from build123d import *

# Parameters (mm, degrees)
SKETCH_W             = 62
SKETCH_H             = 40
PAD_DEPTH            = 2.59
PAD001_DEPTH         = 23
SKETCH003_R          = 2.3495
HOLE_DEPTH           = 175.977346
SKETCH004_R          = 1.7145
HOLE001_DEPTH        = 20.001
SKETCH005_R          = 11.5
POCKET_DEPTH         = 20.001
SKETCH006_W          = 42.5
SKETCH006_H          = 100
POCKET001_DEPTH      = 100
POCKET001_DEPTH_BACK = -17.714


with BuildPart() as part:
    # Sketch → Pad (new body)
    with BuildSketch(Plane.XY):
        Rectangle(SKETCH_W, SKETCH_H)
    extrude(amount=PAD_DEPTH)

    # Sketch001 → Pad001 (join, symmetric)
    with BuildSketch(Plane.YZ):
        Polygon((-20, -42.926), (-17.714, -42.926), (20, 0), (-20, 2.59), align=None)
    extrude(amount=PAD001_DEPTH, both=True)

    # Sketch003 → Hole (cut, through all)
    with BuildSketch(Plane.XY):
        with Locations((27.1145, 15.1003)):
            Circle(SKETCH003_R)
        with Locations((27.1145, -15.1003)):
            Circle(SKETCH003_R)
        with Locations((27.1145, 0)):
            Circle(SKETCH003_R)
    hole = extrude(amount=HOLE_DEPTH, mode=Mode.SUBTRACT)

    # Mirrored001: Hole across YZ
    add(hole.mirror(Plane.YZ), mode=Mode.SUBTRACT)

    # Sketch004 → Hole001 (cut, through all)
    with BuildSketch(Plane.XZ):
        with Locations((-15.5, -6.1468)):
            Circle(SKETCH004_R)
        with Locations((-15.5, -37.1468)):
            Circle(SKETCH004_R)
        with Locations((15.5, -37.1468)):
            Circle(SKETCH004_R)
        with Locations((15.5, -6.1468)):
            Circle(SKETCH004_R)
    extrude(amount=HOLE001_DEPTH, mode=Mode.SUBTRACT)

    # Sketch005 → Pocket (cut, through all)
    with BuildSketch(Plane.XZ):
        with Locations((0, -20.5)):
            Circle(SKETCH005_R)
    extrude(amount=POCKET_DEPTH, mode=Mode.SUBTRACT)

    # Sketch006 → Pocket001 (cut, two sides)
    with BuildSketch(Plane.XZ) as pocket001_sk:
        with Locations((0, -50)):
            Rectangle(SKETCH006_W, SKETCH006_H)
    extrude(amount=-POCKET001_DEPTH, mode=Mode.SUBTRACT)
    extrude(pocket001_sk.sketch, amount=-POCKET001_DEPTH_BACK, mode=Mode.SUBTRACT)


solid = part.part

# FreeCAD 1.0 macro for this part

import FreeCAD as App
import Part
import Sketcher

V = App.Vector


def add_polygon(sketch, points):
    """Adds a closed chain of lines whose ends are joined by coincident constraints."""
    first, n = sketch.GeometryCount, len(points)
    for a, b in zip(points, points[1:] + points[:1]):
        sketch.addGeometry(Part.LineSegment(App.Vector(*a, 0), App.Vector(*b, 0)), False)
    for i in range(n):
        sketch.addConstraint(Sketcher.Constraint("Coincident", first + i, 2, first + (i + 1) % n, 1))

doc = App.newDocument("Part")
body = doc.addObject("PartDesign::Body", "Body")

# Sketch on XY plane
sketch1 = body.newObject("Sketcher::SketchObject", "Sketch")
sketch1.AttachmentSupport = (doc.getObject("XY_Plane"), [""])
sketch1.MapMode = "FlatFace"
add_polygon(sketch1, [(-31, 20), (-31, -20), (31, -20), (31, 20)])  # lines 0-3
sketch1.addConstraint(Sketcher.Constraint("Vertical", 0))
sketch1.addConstraint(Sketcher.Constraint("Horizontal", 1))
sketch1.addConstraint(Sketcher.Constraint("Vertical", 2))
sketch1.addConstraint(Sketcher.Constraint("Horizontal", 3))
sketch1.addConstraint(Sketcher.Constraint("Symmetric", 0, 2, 2, 2, -1, 1))
sketch1.addConstraint(Sketcher.Constraint("DistanceX", 1, 1, 1, 2, 62.0))
sketch1.addConstraint(Sketcher.Constraint("DistanceY", 0, 2, 0, 1, 40.0))
pad1 = body.newObject("PartDesign::Pad", "Pad")
pad1.Profile = sketch1
pad1.Length = 2.59

# Sketch on YZ plane
sketch2 = body.newObject("Sketcher::SketchObject", "Sketch001")
sketch2.AttachmentSupport = (doc.getObject("YZ_Plane"), [""])
sketch2.MapMode = "FlatFace"
add_polygon(sketch2, [(-20, -42.9), (-17.7, -42.9), (20, 0), (-20, 2.6)])  # lines 0-3
sketch2.addConstraint(Sketcher.Constraint("Horizontal", 0))
sketch2.addConstraint(Sketcher.Constraint("Vertical", 3))
sketch2.addConstraint(Sketcher.Constraint("PointOnObject", 1, 2, -1))
sketch2.addConstraint(Sketcher.Constraint("DistanceX", -1, 1, 1, 2, 20.0))
sketch2.addConstraint(Sketcher.Constraint("DistanceX", 2, 2, -1, 1, 20.0))
sketch2.addConstraint(Sketcher.Constraint("DistanceX", 0, 1, 0, 2, 2.286))
sketch2.addConstraint(Sketcher.Constraint("DistanceY", 3, 2, 3, 1, 45.516))
sketch2.addConstraint(Sketcher.Constraint("DistanceY", -1, 1, 2, 2, 2.59))
pad2 = body.newObject("PartDesign::Pad", "Pad001")
pad2.Profile = sketch2
pad2.Length = 46
pad2.Midplane = True

# Sketch on XY plane
sketch3 = body.newObject("Sketcher::SketchObject", "Sketch002")
sketch3.AttachmentSupport = (doc.getObject("XY_Plane"), [""])
sketch3.MapMode = "FlatFace"
sketch3.addGeometry(Part.Circle(V(27.1, 15.1, 0), V(0, 0, 1), 2.3), False)
sketch3.addGeometry(Part.Circle(V(27.1, -15.1, 0), V(0, 0, 1), 2.3), False)
sketch3.addGeometry(Part.Circle(V(27.1, 0, 0), V(0, 0, 1), 2.3), False)
sketch3.addConstraint(Sketcher.Constraint("Equal", 0, 1))
sketch3.addConstraint(Sketcher.Constraint("Equal", 1, 2))
sketch3.addConstraint(Sketcher.Constraint("Symmetric", 0, 3, 1, 3, -1))
sketch3.addConstraint(Sketcher.Constraint("PointOnObject", 2, 3, -1))
sketch3.addConstraint(Sketcher.Constraint("Vertical", 1, 3, 2, 3))
sketch3.addConstraint(Sketcher.Constraint("Diameter", 0, 4.699))
sketch3.addConstraint(Sketcher.Constraint("DistanceX", -1, 1, 0, 3, 27.1145))
sketch3.addConstraint(Sketcher.Constraint("DistanceY", -1, 1, 0, 3, 15.1003))
pocket1 = body.newObject("PartDesign::Pocket", "Pocket")
pocket1.Profile = sketch3
pocket1.Type = "ThroughAll"
pocket1.Reversed = True
doc.recompute()

mirrored = body.newObject("PartDesign::Mirrored", "Mirrored")
mirrored.Originals = [pocket1]
mirrored.MirrorPlane = (doc.getObject("YZ_Plane"), [""])
body.Tip = mirrored

# Sketch on XZ plane
sketch4 = body.newObject("Sketcher::SketchObject", "Sketch003")
sketch4.AttachmentSupport = (doc.getObject("XZ_Plane"), [""])
sketch4.MapMode = "FlatFace"
sketch4.addGeometry(Part.Circle(V(-15.5, -6.1, 0), V(0, 0, 1), 1.7), False)
sketch4.addGeometry(Part.Circle(V(-15.5, -37.1, 0), V(0, 0, 1), 1.7), False)
sketch4.addGeometry(Part.Circle(V(15.5, -37.1, 0), V(0, 0, 1), 1.7), False)
sketch4.addGeometry(Part.Circle(V(15.5, -6.1, 0), V(0, 0, 1), 1.7), False)
sketch4.addConstraint(Sketcher.Constraint("Equal", 0, 1))
sketch4.addConstraint(Sketcher.Constraint("Equal", 1, 2))
sketch4.addConstraint(Sketcher.Constraint("Equal", 2, 3))
sketch4.addConstraint(Sketcher.Constraint("Symmetric", 1, 3, 2, 3, -2))
sketch4.addConstraint(Sketcher.Constraint("Symmetric", 0, 3, 3, 3, -2))
sketch4.addConstraint(Sketcher.Constraint("Vertical", 0, 3, 1, 3))
sketch4.addConstraint(Sketcher.Constraint("Diameter", 0, 3.429))
sketch4.addConstraint(Sketcher.Constraint("DistanceY", 1, 3, 0, 3, 31.0))
sketch4.addConstraint(Sketcher.Constraint("DistanceX", 1, 3, 2, 3, 31.0))
sketch4.addConstraint(Sketcher.Constraint("DistanceY", 0, 3, -1, 1, 6.1468))
pocket2 = body.newObject("PartDesign::Pocket", "Pocket001")
pocket2.Profile = sketch4
pocket2.Type = "ThroughAll"
pocket2.Reversed = True

# Sketch on XZ plane
sketch5 = body.newObject("Sketcher::SketchObject", "Sketch004")
sketch5.AttachmentSupport = (doc.getObject("XZ_Plane"), [""])
sketch5.MapMode = "FlatFace"
sketch5.addGeometry(Part.Circle(V(0, -20, 0), V(0, 0, 1), 12), False)
sketch5.addConstraint(Sketcher.Constraint("PointOnObject", 0, 3, -2))
sketch5.addConstraint(Sketcher.Constraint("Diameter", 0, 23.0))
sketch5.addConstraint(Sketcher.Constraint("DistanceY", 0, 3, -1, 1, 20.5))
pocket3 = body.newObject("PartDesign::Pocket", "Pocket002")
pocket3.Profile = sketch5
pocket3.Type = "ThroughAll"
pocket3.Reversed = True

# Sketch on XZ plane
sketch6 = body.newObject("Sketcher::SketchObject", "Sketch005")
sketch6.AttachmentSupport = (doc.getObject("XZ_Plane"), [""])
sketch6.MapMode = "FlatFace"
add_polygon(sketch6, [(-21, 0), (-21, -100), (21, -100), (21, 0)])  # lines 0-3
sketch6.addConstraint(Sketcher.Constraint("Vertical", 0))
sketch6.addConstraint(Sketcher.Constraint("Horizontal", 1))
sketch6.addConstraint(Sketcher.Constraint("Vertical", 2))
sketch6.addConstraint(Sketcher.Constraint("Horizontal", 3))
sketch6.addConstraint(Sketcher.Constraint("Symmetric", 2, 2, 3, 2, -1, 1))
sketch6.addConstraint(Sketcher.Constraint("DistanceY", 0, 2, 0, 1, 100.0))
sketch6.addConstraint(Sketcher.Constraint("DistanceX", 1, 1, 1, 2, 42.5))
pocket4 = body.newObject("PartDesign::Pocket", "Pocket003")
pocket4.Profile = sketch6
pocket4.Type = "TwoLengths"
pocket4.Length = 100
pocket4.Length2 = 17.714

doc.recompute()
